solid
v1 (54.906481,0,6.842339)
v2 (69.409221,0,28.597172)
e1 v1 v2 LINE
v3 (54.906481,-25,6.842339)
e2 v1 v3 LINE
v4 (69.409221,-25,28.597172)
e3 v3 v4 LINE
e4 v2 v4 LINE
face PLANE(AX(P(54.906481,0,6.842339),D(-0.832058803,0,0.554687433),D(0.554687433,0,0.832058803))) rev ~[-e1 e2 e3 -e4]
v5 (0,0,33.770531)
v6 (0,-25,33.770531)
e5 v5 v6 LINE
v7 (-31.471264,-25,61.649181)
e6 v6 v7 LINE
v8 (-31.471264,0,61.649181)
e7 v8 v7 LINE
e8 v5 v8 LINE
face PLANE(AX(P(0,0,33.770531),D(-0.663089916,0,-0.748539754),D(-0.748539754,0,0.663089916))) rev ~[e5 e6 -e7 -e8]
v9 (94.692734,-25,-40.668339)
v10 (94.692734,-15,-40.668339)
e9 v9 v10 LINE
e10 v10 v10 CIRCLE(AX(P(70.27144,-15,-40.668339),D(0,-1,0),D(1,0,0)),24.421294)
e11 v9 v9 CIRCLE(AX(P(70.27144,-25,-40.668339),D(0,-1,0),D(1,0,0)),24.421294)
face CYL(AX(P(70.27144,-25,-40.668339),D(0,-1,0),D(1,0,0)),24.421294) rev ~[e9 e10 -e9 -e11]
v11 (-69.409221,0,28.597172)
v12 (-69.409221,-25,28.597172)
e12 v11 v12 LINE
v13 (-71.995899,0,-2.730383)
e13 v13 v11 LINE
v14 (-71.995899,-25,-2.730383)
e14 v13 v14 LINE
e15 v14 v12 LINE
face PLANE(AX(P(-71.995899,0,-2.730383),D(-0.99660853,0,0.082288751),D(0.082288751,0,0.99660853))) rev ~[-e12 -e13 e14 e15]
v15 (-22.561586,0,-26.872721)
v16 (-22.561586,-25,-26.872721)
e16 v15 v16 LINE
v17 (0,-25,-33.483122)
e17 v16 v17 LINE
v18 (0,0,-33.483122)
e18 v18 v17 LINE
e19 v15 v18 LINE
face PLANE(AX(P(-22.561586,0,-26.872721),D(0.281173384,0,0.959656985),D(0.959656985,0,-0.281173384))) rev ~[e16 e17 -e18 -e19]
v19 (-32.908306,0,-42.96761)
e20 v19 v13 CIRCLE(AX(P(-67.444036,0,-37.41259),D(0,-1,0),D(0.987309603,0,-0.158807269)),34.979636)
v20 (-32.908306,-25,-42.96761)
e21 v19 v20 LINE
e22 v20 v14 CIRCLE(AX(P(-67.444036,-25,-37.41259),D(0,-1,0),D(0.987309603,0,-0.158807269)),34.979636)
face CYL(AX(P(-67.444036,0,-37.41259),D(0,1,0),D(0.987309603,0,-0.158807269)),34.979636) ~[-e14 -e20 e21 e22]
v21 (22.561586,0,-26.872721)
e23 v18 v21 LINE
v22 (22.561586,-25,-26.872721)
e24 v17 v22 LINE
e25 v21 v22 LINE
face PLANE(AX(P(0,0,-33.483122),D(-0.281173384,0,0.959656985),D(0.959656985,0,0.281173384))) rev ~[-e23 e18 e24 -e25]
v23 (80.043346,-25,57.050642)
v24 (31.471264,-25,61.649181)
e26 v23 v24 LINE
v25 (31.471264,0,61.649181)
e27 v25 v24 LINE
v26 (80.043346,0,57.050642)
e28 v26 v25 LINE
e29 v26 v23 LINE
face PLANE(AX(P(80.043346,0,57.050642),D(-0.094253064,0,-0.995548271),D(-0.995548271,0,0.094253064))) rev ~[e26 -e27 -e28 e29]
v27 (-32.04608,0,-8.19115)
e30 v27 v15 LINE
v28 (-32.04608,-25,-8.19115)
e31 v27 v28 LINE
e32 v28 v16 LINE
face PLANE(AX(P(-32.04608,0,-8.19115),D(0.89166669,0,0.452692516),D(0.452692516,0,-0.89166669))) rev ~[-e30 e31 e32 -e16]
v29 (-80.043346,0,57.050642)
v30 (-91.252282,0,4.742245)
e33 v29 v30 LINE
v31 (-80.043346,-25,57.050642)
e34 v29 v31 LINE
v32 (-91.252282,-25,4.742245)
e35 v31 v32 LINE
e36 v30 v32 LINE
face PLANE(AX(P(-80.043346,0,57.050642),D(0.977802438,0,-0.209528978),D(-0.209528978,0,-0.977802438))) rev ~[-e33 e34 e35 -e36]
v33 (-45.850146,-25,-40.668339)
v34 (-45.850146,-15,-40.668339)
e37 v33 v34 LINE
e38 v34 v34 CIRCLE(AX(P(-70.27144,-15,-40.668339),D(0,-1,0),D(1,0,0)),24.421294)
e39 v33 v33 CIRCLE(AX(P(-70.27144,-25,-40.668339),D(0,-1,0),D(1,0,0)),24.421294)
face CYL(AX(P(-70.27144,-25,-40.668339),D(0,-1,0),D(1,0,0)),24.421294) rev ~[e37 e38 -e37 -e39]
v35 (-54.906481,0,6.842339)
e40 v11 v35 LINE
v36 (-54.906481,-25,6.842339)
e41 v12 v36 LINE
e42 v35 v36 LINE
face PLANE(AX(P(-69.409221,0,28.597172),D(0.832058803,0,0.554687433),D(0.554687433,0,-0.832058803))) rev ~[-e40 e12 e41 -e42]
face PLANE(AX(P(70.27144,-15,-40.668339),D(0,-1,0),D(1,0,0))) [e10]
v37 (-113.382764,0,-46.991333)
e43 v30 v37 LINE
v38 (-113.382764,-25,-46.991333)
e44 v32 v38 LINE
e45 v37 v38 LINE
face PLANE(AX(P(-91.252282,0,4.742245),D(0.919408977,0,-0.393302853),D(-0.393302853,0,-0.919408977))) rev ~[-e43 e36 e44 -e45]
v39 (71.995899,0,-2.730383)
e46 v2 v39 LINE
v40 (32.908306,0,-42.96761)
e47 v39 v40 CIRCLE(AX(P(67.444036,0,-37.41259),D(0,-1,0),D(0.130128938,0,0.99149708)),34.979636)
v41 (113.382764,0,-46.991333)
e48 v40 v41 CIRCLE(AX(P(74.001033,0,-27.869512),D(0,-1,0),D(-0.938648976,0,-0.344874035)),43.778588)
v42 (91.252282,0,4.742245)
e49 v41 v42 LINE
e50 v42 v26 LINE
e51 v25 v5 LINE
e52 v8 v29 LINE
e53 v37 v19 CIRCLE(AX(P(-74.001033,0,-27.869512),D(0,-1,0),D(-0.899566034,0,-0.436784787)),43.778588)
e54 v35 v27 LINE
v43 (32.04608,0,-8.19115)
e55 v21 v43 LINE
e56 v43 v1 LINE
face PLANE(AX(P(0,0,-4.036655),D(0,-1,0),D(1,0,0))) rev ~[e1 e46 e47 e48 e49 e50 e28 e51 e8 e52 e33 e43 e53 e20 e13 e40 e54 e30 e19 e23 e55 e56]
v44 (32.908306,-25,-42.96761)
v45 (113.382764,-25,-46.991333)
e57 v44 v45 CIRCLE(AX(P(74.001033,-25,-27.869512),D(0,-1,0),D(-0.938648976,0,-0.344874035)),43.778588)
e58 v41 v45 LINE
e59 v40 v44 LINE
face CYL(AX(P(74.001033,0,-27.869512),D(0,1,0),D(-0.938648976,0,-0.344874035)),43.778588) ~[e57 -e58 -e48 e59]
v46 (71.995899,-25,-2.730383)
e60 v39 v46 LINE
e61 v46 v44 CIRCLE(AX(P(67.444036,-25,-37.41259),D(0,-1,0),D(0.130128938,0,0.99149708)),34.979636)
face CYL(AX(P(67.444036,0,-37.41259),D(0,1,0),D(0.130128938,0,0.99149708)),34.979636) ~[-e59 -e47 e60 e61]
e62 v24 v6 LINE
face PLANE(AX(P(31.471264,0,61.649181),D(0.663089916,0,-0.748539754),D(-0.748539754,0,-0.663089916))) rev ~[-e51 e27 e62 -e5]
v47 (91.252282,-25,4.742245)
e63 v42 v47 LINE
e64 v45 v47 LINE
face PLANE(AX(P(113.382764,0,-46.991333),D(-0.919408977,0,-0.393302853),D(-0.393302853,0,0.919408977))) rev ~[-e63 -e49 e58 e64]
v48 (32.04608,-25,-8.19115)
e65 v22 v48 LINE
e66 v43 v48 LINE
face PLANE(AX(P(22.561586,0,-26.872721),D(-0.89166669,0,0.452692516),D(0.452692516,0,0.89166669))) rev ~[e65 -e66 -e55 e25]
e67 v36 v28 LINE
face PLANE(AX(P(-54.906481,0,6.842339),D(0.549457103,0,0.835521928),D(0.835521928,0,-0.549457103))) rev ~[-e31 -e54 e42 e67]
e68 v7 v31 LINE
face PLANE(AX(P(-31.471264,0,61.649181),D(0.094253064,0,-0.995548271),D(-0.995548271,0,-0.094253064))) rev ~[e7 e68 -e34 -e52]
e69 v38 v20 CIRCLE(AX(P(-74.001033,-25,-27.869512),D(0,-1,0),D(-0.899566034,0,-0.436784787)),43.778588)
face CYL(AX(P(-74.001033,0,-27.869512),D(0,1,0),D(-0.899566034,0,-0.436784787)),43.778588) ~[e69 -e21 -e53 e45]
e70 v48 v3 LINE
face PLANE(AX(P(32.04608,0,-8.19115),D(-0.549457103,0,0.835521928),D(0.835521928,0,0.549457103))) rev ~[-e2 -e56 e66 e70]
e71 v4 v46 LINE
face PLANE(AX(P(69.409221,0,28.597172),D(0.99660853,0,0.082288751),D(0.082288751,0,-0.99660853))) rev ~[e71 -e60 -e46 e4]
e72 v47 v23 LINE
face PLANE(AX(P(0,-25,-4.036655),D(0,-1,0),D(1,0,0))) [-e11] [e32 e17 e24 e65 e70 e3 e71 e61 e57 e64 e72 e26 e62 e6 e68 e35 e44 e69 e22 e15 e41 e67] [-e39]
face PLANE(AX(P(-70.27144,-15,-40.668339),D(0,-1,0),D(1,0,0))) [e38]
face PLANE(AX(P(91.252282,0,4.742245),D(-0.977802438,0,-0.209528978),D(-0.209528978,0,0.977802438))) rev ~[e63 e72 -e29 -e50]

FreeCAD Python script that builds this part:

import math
import FreeCAD as App
import Part
import Sketcher

doc = App.newDocument("Part")
body = doc.addObject("PartDesign::Body", "Body")

sketch1 = body.newObject("Sketcher::SketchObject", "Sketch")
sketch1.AttachmentSupport = (doc.getObject("XZ_Plane"), [""])
sketch1.MapMode = "FlatFace"
sketch1.addGeometry(Part.LineSegment(App.Vector(31.471264, 61.649181, 0), App.Vector(0, 33.770531, 0)), False)
sketch1.addGeometry(Part.LineSegment(App.Vector(0, 33.770531, 0), App.Vector(-31.471264, 61.649181, 0)), False)
sketch1.addGeometry(Part.LineSegment(App.Vector(-31.471264, 61.649181, 0), App.Vector(-80.043346, 57.050642, 0)), False)
sketch1.addGeometry(Part.LineSegment(App.Vector(-80.043346, 57.050642, 0), App.Vector(-91.252282, 4.742245, 0)), False)
sketch1.addGeometry(Part.LineSegment(App.Vector(-91.252282, 4.742245, 0), App.Vector(-113.382764, -46.991333, 0)), False)
sketch1.addGeometry(Part.ArcOfCircle(Part.Circle(App.Vector(-74.001033, -27.869512, 0), App.Vector(0, 0, 1), 43.778588), math.radians(-154.101083), math.radians(-20.174107)), False)
sketch1.addGeometry(Part.ArcOfCircle(Part.Circle(App.Vector(-67.444036, -37.41259, 0), App.Vector(0, 0, 1), 34.979636), math.radians(-9.137673), math.radians(97.477043)), False)
sketch1.addGeometry(Part.LineSegment(App.Vector(-71.995899, -2.730383, 0), App.Vector(-69.409221, 28.597172, 0)), False)
sketch1.addGeometry(Part.LineSegment(App.Vector(-69.409221, 28.597172, 0), App.Vector(-54.906481, 6.842339, 0)), False)
sketch1.addGeometry(Part.LineSegment(App.Vector(-54.906481, 6.842339, 0), App.Vector(-32.04608, -8.19115, 0)), False)
sketch1.addGeometry(Part.LineSegment(App.Vector(-32.04608, -8.19115, 0), App.Vector(-22.561586, -26.872721, 0)), False)
sketch1.addGeometry(Part.LineSegment(App.Vector(-22.561586, -26.872721, 0), App.Vector(0, -33.483122, 0)), False)
sketch1.addGeometry(Part.LineSegment(App.Vector(0, -33.483122, 0), App.Vector(22.561586, -26.872721, 0)), False)
sketch1.addGeometry(Part.LineSegment(App.Vector(22.561586, -26.872721, 0), App.Vector(32.04608, -8.19115, 0)), False)
sketch1.addGeometry(Part.LineSegment(App.Vector(32.04608, -8.19115, 0), App.Vector(54.906481, 6.842339, 0)), False)
sketch1.addGeometry(Part.LineSegment(App.Vector(54.906481, 6.842339, 0), App.Vector(69.409221, 28.597172, 0)), False)
sketch1.addGeometry(Part.LineSegment(App.Vector(69.409221, 28.597172, 0), App.Vector(71.995899, -2.730383, 0)), False)
sketch1.addGeometry(Part.ArcOfCircle(Part.Circle(App.Vector(67.444036, -37.41259, 0), App.Vector(0, 0, 1), 34.979636), math.radians(82.522957), math.radians(189.137673)), False)
sketch1.addGeometry(Part.ArcOfCircle(Part.Circle(App.Vector(74.001033, -27.869512, 0), App.Vector(0, 0, 1), 43.778588), math.radians(-159.825893), math.radians(-25.898917)), False)
sketch1.addGeometry(Part.LineSegment(App.Vector(113.382764, -46.991333, 0), App.Vector(91.252282, 4.742245, 0)), False)
sketch1.addGeometry(Part.LineSegment(App.Vector(91.252282, 4.742245, 0), App.Vector(80.043346, 57.050642, 0)), False)
sketch1.addGeometry(Part.LineSegment(App.Vector(80.043346, 57.050642, 0), App.Vector(31.471264, 61.649181, 0)), False)
sketch1.addConstraint(Sketcher.Constraint("Coincident", 0, 2, 1, 1))
sketch1.addConstraint(Sketcher.Constraint("Coincident", 1, 2, 2, 1))
sketch1.addConstraint(Sketcher.Constraint("Coincident", 2, 2, 3, 1))
sketch1.addConstraint(Sketcher.Constraint("Coincident", 3, 2, 4, 1))
sketch1.addConstraint(Sketcher.Constraint("Coincident", 4, 2, 5, 1))
sketch1.addConstraint(Sketcher.Constraint("Coincident", 5, 2, 6, 1))
sketch1.addConstraint(Sketcher.Constraint("Coincident", 6, 2, 7, 1))
sketch1.addConstraint(Sketcher.Constraint("Coincident", 7, 2, 8, 1))
sketch1.addConstraint(Sketcher.Constraint("Coincident", 8, 2, 9, 1))
sketch1.addConstraint(Sketcher.Constraint("Coincident", 9, 2, 10, 1))
sketch1.addConstraint(Sketcher.Constraint("Coincident", 10, 2, 11, 1))
sketch1.addConstraint(Sketcher.Constraint("Coincident", 11, 2, 12, 1))
sketch1.addConstraint(Sketcher.Constraint("Coincident", 12, 2, 13, 1))
sketch1.addConstraint(Sketcher.Constraint("Coincident", 13, 2, 14, 1))
sketch1.addConstraint(Sketcher.Constraint("Coincident", 14, 2, 15, 1))
sketch1.addConstraint(Sketcher.Constraint("Coincident", 15, 2, 16, 1))
sketch1.addConstraint(Sketcher.Constraint("Coincident", 16, 2, 17, 1))
sketch1.addConstraint(Sketcher.Constraint("Coincident", 17, 2, 18, 1))
sketch1.addConstraint(Sketcher.Constraint("Coincident", 18, 2, 19, 1))
sketch1.addConstraint(Sketcher.Constraint("Coincident", 19, 2, 20, 1))
sketch1.addConstraint(Sketcher.Constraint("Coincident", 20, 2, 21, 1))
sketch1.addConstraint(Sketcher.Constraint("Coincident", 21, 2, 0, 1))
sketch1.addConstraint(Sketcher.Constraint("Equal", 6, 17))
sketch1.addConstraint(Sketcher.Constraint("Equal", 5, 18))
sketch1.addConstraint(Sketcher.Constraint("Symmetric", 6, 3, 17, 3, -2))
sketch1.addConstraint(Sketcher.Constraint("Symmetric", 5, 3, 18, 3, -2))
sketch1.addConstraint(Sketcher.Constraint("Symmetric", 10, 2, 12, 2, -2))
sketch1.addConstraint(Sketcher.Constraint("Symmetric", 9, 2, 13, 2, -2))
sketch1.addConstraint(Sketcher.Constraint("Symmetric", 8, 2, 14, 2, -2))
sketch1.addConstraint(Sketcher.Constraint("Symmetric", 7, 2, 15, 2, -2))
sketch1.addConstraint(Sketcher.Constraint("Symmetric", 3, 2, 19, 2, -2))
sketch1.addConstraint(Sketcher.Constraint("Symmetric", 2, 2, 20, 2, -2))
sketch1.addConstraint(Sketcher.Constraint("Symmetric", 1, 2, 21, 2, -2))
sketch1.addConstraint(Sketcher.Constraint("PointOnObject", 0, 2, -2))
sketch1.addConstraint(Sketcher.Constraint("PointOnObject", 11, 2, -2))
sketch1.addConstraint(Sketcher.Constraint("Horizontal", 6, 2, 16, 2))
sketch1.addConstraint(Sketcher.Constraint("Horizontal", 4, 2, 18, 2))
sketch1.addConstraint(Sketcher.Constraint("Radius", 5, 43.778588))
sketch1.addConstraint(Sketcher.Constraint("Radius", 6, 34.979636))
sketch1.addConstraint(Sketcher.Constraint("DistanceX", 6, 2, -1, 1, 71.995899))
sketch1.addConstraint(Sketcher.Constraint("DistanceX", 1, 2, 17, 3, 98.9153))
sketch1.addConstraint(Sketcher.Constraint("DistanceX", 4, 2, 1, 2, 81.9115))
sketch1.addConstraint(Sketcher.Constraint("DistanceY", 5, 2, 5, 3, 15.098098))
sketch1.addConstraint(Sketcher.Constraint("DistanceX", 3, 2, 8, 2, 36.345801))
sketch1.addConstraint(Sketcher.Constraint("DistanceX", 8, 2, 9, 2, 22.860401))
sketch1.addConstraint(Sketcher.Constraint("DistanceY", 11, 2, 10, 2, 6.610401))
sketch1.addConstraint(Sketcher.Constraint("Distance", 2, 48.789279))
sketch1.addConstraint(Sketcher.Constraint("DistanceY", 5, 3, -1, 1, 27.869512))
sketch1.addConstraint(Sketcher.Constraint("DistanceY", 6, 3, -1, 1, 37.41259))
sketch1.addConstraint(Sketcher.Constraint("DistanceY", -1, 1, 0, 2, 33.770531))
sketch1.addConstraint(Sketcher.Constraint("DistanceY", -1, 1, 1, 2, 61.649181))
sketch1.addConstraint(Sketcher.Constraint("DistanceX", 3, 2, -1, 1, 91.252282))
sketch1.addConstraint(Sketcher.Constraint("DistanceX", 7, 2, -1, 1, 69.409221))
sketch1.addConstraint(Sketcher.Constraint("DistanceY", -1, 1, 8, 2, 6.842339))
sketch1.addConstraint(Sketcher.Constraint("DistanceY", 9, 2, -1, 1, 8.19115))
sketch1.addConstraint(Sketcher.Constraint("DistanceY", 10, 2, -1, 1, 26.872721))
sketch1.addConstraint(Sketcher.Constraint("DistanceX", 5, 3, 17, 3, 141.445069))
sketch1.addConstraint(Sketcher.Constraint("DistanceX", 2, 2, 1, 2, 48.572082))
sketch1.addConstraint(Sketcher.Constraint("DistanceY", 6, 2, 3, 2, 7.472628))
sketch1.addConstraint(Sketcher.Constraint("DistanceY", 7, 2, 2, 2, 28.45347))
sketch1.addConstraint(Sketcher.Constraint("DistanceX", 5, 2, 10, 2, 10.34672))
pad1 = body.newObject("PartDesign::Pad", "Pad")
pad1.Profile = sketch1
pad1.Length = 25

sketch2 = body.newObject("Sketcher::SketchObject", "Sketch001")
sketch2.AttachmentSupport = (doc.getObject("XZ_Plane"), [""])
sketch2.MapMode = "FlatFace"
sketch2.AttachmentOffset = App.Placement(App.Vector(0, 0, 25), App.Rotation())
sketch2.addGeometry(Part.Circle(App.Vector(-70.27144, -40.668339, 0), App.Vector(0, 0, 1), 24.421294), False)
sketch2.addGeometry(Part.Circle(App.Vector(70.27144, -40.668339, 0), App.Vector(0, 0, 1), 24.421294), False)
sketch2.addConstraint(Sketcher.Constraint("Equal", 0, 1))
sketch2.addConstraint(Sketcher.Constraint("Symmetric", 0, 3, 1, 3, -2))
sketch2.addConstraint(Sketcher.Constraint("Diameter", 0, 48.842588))
sketch2.addConstraint(Sketcher.Constraint("DistanceX", 0, 3, -1, 1, 70.27144))
sketch2.addConstraint(Sketcher.Constraint("DistanceY", 0, 3, -1, 1, 40.668339))
pocket1 = body.newObject("PartDesign::Pocket", "Pocket")
pocket1.Profile = sketch2
pocket1.Length = 10

doc.recompute()
